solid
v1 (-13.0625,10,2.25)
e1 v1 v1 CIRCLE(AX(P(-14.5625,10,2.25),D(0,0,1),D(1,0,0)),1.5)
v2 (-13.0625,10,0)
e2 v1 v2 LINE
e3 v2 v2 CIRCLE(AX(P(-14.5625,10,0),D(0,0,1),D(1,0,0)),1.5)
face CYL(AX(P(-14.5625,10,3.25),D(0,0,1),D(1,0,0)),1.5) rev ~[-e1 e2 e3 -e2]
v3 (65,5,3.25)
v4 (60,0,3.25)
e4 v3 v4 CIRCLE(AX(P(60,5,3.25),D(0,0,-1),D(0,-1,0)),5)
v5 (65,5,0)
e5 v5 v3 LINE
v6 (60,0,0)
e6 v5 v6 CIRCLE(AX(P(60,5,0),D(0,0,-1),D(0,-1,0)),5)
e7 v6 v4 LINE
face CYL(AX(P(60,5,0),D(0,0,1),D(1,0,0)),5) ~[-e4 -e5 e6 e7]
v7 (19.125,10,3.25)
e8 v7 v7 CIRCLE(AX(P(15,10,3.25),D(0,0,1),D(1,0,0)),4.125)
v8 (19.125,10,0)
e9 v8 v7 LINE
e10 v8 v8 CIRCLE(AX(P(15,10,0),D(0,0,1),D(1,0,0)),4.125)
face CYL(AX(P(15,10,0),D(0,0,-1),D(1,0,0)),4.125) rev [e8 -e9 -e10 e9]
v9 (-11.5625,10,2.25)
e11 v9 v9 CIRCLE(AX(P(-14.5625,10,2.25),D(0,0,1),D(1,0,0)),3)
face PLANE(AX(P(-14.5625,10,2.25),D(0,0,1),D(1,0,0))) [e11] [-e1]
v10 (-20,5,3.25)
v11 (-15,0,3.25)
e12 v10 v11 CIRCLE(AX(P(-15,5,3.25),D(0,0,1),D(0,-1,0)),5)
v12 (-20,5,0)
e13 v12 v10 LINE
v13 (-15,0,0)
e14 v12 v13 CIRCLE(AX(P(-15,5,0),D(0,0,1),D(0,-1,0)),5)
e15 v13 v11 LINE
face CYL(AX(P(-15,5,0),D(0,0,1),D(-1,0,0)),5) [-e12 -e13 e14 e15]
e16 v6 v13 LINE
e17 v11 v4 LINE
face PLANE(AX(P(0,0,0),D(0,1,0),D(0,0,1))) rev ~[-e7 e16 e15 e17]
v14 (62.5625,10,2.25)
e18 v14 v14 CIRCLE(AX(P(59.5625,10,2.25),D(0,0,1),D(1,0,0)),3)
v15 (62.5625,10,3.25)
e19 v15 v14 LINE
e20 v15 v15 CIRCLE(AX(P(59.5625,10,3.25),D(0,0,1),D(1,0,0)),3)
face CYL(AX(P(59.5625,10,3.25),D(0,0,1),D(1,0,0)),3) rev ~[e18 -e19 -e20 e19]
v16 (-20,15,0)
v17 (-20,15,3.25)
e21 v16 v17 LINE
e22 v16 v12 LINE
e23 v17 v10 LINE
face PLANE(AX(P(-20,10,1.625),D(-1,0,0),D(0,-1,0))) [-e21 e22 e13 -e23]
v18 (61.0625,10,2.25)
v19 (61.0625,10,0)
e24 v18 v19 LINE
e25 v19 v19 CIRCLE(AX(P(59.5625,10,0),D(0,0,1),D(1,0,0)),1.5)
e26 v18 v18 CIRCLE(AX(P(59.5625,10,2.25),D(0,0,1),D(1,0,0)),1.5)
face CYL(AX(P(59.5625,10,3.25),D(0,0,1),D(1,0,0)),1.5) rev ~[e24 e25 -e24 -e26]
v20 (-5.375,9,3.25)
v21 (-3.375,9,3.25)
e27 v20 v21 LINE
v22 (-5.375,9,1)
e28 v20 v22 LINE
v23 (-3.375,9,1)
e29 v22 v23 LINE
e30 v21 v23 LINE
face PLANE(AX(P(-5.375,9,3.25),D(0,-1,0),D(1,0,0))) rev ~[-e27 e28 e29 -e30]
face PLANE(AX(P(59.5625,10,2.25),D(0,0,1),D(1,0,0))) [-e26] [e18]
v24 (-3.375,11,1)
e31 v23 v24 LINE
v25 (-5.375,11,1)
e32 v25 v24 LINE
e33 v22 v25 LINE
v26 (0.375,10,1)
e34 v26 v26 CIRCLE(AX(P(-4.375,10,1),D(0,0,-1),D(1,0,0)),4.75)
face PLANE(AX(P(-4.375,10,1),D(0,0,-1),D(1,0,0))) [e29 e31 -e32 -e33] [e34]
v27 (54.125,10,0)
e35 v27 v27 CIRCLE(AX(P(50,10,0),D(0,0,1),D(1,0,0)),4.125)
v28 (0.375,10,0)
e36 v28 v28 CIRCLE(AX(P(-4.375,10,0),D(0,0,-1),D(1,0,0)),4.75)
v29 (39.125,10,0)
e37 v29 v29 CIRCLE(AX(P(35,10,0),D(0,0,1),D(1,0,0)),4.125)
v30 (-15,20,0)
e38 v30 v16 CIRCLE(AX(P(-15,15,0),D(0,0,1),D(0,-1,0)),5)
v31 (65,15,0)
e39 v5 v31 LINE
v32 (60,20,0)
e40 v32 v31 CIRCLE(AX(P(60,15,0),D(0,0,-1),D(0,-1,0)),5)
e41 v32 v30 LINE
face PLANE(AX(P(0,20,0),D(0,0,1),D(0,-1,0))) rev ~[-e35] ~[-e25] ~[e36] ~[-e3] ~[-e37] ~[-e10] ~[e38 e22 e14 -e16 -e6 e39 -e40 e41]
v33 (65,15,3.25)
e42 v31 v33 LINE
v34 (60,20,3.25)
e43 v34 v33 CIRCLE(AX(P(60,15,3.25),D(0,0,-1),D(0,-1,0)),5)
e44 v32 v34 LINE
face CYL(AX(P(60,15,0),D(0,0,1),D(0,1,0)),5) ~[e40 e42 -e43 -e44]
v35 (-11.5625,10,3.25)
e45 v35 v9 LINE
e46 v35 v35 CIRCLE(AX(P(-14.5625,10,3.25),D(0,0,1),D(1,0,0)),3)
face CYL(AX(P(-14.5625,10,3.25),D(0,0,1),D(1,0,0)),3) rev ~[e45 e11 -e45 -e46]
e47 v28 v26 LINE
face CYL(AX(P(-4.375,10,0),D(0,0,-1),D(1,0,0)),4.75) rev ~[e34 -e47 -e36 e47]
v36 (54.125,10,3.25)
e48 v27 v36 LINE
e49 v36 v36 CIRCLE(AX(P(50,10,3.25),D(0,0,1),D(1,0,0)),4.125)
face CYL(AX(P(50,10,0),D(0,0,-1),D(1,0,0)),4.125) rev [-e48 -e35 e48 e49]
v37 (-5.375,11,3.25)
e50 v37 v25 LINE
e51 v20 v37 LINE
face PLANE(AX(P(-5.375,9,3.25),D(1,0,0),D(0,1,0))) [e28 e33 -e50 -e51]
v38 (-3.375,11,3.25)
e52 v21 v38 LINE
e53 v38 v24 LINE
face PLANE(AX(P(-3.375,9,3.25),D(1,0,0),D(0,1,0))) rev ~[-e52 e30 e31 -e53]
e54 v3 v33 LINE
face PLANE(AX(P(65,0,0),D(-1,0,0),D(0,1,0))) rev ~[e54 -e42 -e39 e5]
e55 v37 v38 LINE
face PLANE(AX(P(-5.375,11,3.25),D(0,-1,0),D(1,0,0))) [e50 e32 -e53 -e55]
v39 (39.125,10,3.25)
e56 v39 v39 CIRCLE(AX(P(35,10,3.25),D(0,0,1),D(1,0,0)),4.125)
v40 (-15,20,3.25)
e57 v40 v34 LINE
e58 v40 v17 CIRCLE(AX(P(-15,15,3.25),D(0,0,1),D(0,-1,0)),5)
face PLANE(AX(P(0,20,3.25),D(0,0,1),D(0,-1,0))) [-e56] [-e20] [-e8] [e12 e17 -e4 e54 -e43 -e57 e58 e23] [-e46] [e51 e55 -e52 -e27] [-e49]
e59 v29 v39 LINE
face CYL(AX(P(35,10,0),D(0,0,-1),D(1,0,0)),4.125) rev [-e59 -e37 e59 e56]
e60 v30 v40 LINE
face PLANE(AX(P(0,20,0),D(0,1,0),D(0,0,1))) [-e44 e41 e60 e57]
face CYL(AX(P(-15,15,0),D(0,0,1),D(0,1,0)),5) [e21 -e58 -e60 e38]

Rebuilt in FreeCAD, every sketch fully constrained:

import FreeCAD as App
import Part
import Sketcher
from FreeCAD import Vector


def edges_at(feature, points):
    """Names of the edges that pass closest to the given points."""
    edges = feature.Shape.Edges
    near = lambda p: min(range(len(edges)), key=lambda i: edges[i].distToShape(Part.Vertex(*p))[0])
    return sorted({f"Edge{near(p) + 1}" for p in points})

doc = App.newDocument("Part")
body = doc.addObject("PartDesign::Body", "Body")

# Sketch on XY plane
sketch1 = doc.addObject("Sketcher::SketchObject", "Sketch")
body.addObject(sketch1)
sketch1.AttachmentSupport = (doc.XY_Plane, [""])
sketch1.MapMode = "FlatFace"
sketch1.addGeometry(Part.LineSegment(Vector(0, 20, 0), Vector(0, 0, 0)), False)
sketch1.addGeometry(Part.LineSegment(Vector(0, 0, 0), Vector(65, 0, 0)), False)
sketch1.addGeometry(Part.LineSegment(Vector(65, 0, 0), Vector(65, 20, 0)), False)
sketch1.addGeometry(Part.LineSegment(Vector(65, 20, 0), Vector(0, 20, 0)), False)
sketch1.addGeometry(Part.Circle(Vector(15, 10, 0), Vector(0, 0, 1), 4.125), False)
sketch1.addGeometry(Part.Circle(Vector(35, 10, 0), Vector(0, 0, 1), 4.125), False)
sketch1.addGeometry(Part.Circle(Vector(50, 10, 0), Vector(0, 0, 1), 4.125), False)
sketch1.addConstraint(Sketcher.Constraint("Coincident", 0, 2, 1, 1))
sketch1.addConstraint(Sketcher.Constraint("Coincident", 1, 2, 2, 1))
sketch1.addConstraint(Sketcher.Constraint("Coincident", 2, 2, 3, 1))
sketch1.addConstraint(Sketcher.Constraint("Coincident", 3, 2, 0, 1))
sketch1.addConstraint(Sketcher.Constraint("Vertical", 0))
sketch1.addConstraint(Sketcher.Constraint("Horizontal", 1))
sketch1.addConstraint(Sketcher.Constraint("Vertical", 2))
sketch1.addConstraint(Sketcher.Constraint("Horizontal", 3))
sketch1.addConstraint(Sketcher.Constraint("Coincident", 0, 2, -1, 1))
sketch1.addConstraint(Sketcher.Constraint("Equal", 4, 5))
sketch1.addConstraint(Sketcher.Constraint("Equal", 5, 6))
sketch1.addConstraint(Sketcher.Constraint("Horizontal", 4, 3, 5, 3))
sketch1.addConstraint(Sketcher.Constraint("Horizontal", 5, 3, 6, 3))
sketch1.addConstraint(Sketcher.Constraint("Diameter", 4, 8.25))
sketch1.addConstraint(Sketcher.Constraint("DistanceX", 1, 1, 1, 2, 65.0))
sketch1.addConstraint(Sketcher.Constraint("DistanceY", 0, 2, 0, 1, 20.0))
sketch1.addConstraint(Sketcher.Constraint("DistanceX", -1, 1, 4, 3, 15.0))
sketch1.addConstraint(Sketcher.Constraint("DistanceY", -1, 1, 4, 3, 10.0))
sketch1.addConstraint(Sketcher.Constraint("DistanceX", -1, 1, 5, 3, 35.0))
sketch1.addConstraint(Sketcher.Constraint("DistanceX", -1, 1, 6, 3, 50.0))
pad1 = doc.addObject("PartDesign::Pad", "Pad")
body.addObject(pad1)
pad1.Profile = sketch1
pad1.Length = 3.25

# Sketch on YZ plane
sketch2 = doc.addObject("Sketcher::SketchObject", "Sketch001")
body.addObject(sketch2)
sketch2.AttachmentSupport = (doc.YZ_Plane, [""])
sketch2.MapMode = "FlatFace"
sketch2.addGeometry(Part.LineSegment(Vector(20, 3.25, 0), Vector(20, 0, 0)), False)
sketch2.addGeometry(Part.LineSegment(Vector(20, 0, 0), Vector(0, 0, 0)), False)
sketch2.addGeometry(Part.LineSegment(Vector(0, 0, 0), Vector(0, 3.25, 0)), False)
sketch2.addGeometry(Part.LineSegment(Vector(0, 3.25, 0), Vector(20, 3.25, 0)), False)
sketch2.addConstraint(Sketcher.Constraint("Coincident", 0, 2, 1, 1))
sketch2.addConstraint(Sketcher.Constraint("Coincident", 1, 2, 2, 1))
sketch2.addConstraint(Sketcher.Constraint("Coincident", 2, 2, 3, 1))
sketch2.addConstraint(Sketcher.Constraint("Coincident", 3, 2, 0, 1))
sketch2.addConstraint(Sketcher.Constraint("Vertical", 0))
sketch2.addConstraint(Sketcher.Constraint("Horizontal", 1))
sketch2.addConstraint(Sketcher.Constraint("Vertical", 2))
sketch2.addConstraint(Sketcher.Constraint("Horizontal", 3))
sketch2.addConstraint(Sketcher.Constraint("Coincident", 1, 2, -1, 1))
sketch2.addConstraint(Sketcher.Constraint("DistanceX", 1, 2, 1, 1, 20.0))
sketch2.addConstraint(Sketcher.Constraint("DistanceY", 0, 2, 0, 1, 3.25))
pad2 = doc.addObject("PartDesign::Pad", "Pad001")
body.addObject(pad2)
pad2.Profile = sketch2
pad2.Length = 20
pad2.Reversed = True

# Sketch on XY plane
sketch3 = doc.addObject("Sketcher::SketchObject", "Sketch002")
body.addObject(sketch3)
sketch3.AttachmentSupport = (doc.XY_Plane, [""])
sketch3.MapMode = "FlatFace"
sketch3.AttachmentOffset = App.Placement(Vector(0, 0, 3.25), App.Rotation())
sketch3.addGeometry(Part.Circle(Vector(-14.5625, 10, 0), Vector(0, 0, 1), 1.5), False)
sketch3.addGeometry(Part.Circle(Vector(59.5625, 10, 0), Vector(0, 0, 1), 1.5), False)
sketch3.addGeometry(Part.LineSegment(Vector(-5.375, 11, 0), Vector(-5.375, 9, 0)), False)
sketch3.addGeometry(Part.LineSegment(Vector(-5.375, 9, 0), Vector(-3.375, 9, 0)), False)
sketch3.addGeometry(Part.LineSegment(Vector(-3.375, 9, 0), Vector(-3.375, 11, 0)), False)
sketch3.addGeometry(Part.LineSegment(Vector(-3.375, 11, 0), Vector(-5.375, 11, 0)), False)
sketch3.addConstraint(Sketcher.Constraint("Coincident", 2, 2, 3, 1))
sketch3.addConstraint(Sketcher.Constraint("Coincident", 3, 2, 4, 1))
sketch3.addConstraint(Sketcher.Constraint("Coincident", 4, 2, 5, 1))
sketch3.addConstraint(Sketcher.Constraint("Coincident", 5, 2, 2, 1))
sketch3.addConstraint(Sketcher.Constraint("Vertical", 2))
sketch3.addConstraint(Sketcher.Constraint("Horizontal", 3))
sketch3.addConstraint(Sketcher.Constraint("Vertical", 4))
sketch3.addConstraint(Sketcher.Constraint("Horizontal", 5))
sketch3.addConstraint(Sketcher.Constraint("Equal", 0, 1))
sketch3.addConstraint(Sketcher.Constraint("Horizontal", 0, 3, 1, 3))
sketch3.addConstraint(Sketcher.Constraint("Equal", 5, 2))
sketch3.addConstraint(Sketcher.Constraint("Diameter", 0, 3.0))
sketch3.addConstraint(Sketcher.Constraint("DistanceX", 3, 1, 3, 2, 2.0))
sketch3.addConstraint(Sketcher.Constraint("DistanceY", -1, 1, 0, 3, 10.0))
sketch3.addConstraint(Sketcher.Constraint("DistanceY", -1, 1, 2, 2, 9.0))
sketch3.addConstraint(Sketcher.Constraint("DistanceX", 2, 2, -1, 1, 5.375))
sketch3.addConstraint(Sketcher.Constraint("DistanceX", 0, 3, 1, 3, 74.125))
sketch3.addConstraint(Sketcher.Constraint("DistanceX", 0, 3, -1, 1, 14.5625))
pocket1 = doc.addObject("PartDesign::Pocket", "Pocket")
body.addObject(pocket1)
pocket1.Profile = sketch3
pocket1.Length = 5
doc.recompute()

fillet = doc.addObject("PartDesign::Fillet", "Fillet")
body.addObject(fillet)
fillet.Base = (pocket1, edges_at(pocket1, [
    (-20, 20, 1.625),
    (-20, 0, 1.625),
    (65, 0, 1.625),
    (65, 20, 1.625),
]))
fillet.Radius = 5

# Sketch on XY plane
sketch4 = doc.addObject("Sketcher::SketchObject", "Sketch003")
body.addObject(sketch4)
sketch4.AttachmentSupport = (doc.XY_Plane, [""])
sketch4.MapMode = "FlatFace"
sketch4.AttachmentOffset = App.Placement(Vector(0, 0, 3.25), App.Rotation())
sketch4.addGeometry(Part.Circle(Vector(-14.5625, 10, 0), Vector(0, 0, 1), 3), False)
sketch4.addGeometry(Part.Circle(Vector(59.5625, 10, 0), Vector(0, 0, 1), 3), False)
sketch4.addConstraint(Sketcher.Constraint("Equal", 0, 1))
sketch4.addConstraint(Sketcher.Constraint("Horizontal", 0, 3, 1, 3))
sketch4.addConstraint(Sketcher.Constraint("Diameter", 0, 6.0))
sketch4.addConstraint(Sketcher.Constraint("DistanceY", -1, 1, 0, 3, 10.0))
sketch4.addConstraint(Sketcher.Constraint("DistanceX", 0, 3, 1, 3, 74.125))
sketch4.addConstraint(Sketcher.Constraint("DistanceX", 0, 3, -1, 1, 14.5625))
pocket2 = doc.addObject("PartDesign::Pocket", "Pocket001")
body.addObject(pocket2)
pocket2.Profile = sketch4
pocket2.Length = 1

# Sketch on XY plane
sketch5 = doc.addObject("Sketcher::SketchObject", "Sketch004")
body.addObject(sketch5)
sketch5.AttachmentSupport = (doc.XY_Plane, [""])
sketch5.MapMode = "FlatFace"
sketch5.addGeometry(Part.Circle(Vector(-4.375, 10, 0), Vector(0, 0, 1), 4.75), False)
sketch5.addConstraint(Sketcher.Constraint("Diameter", 0, 9.5))
sketch5.addConstraint(Sketcher.Constraint("DistanceY", -1, 1, 0, 3, 10.0))
sketch5.addConstraint(Sketcher.Constraint("DistanceX", 0, 3, -1, 1, 4.375))
pocket3 = doc.addObject("PartDesign::Pocket", "Pocket002")
body.addObject(pocket3)
pocket3.Profile = sketch5
pocket3.Length = 1
pocket3.Reversed = True

doc.recompute()
